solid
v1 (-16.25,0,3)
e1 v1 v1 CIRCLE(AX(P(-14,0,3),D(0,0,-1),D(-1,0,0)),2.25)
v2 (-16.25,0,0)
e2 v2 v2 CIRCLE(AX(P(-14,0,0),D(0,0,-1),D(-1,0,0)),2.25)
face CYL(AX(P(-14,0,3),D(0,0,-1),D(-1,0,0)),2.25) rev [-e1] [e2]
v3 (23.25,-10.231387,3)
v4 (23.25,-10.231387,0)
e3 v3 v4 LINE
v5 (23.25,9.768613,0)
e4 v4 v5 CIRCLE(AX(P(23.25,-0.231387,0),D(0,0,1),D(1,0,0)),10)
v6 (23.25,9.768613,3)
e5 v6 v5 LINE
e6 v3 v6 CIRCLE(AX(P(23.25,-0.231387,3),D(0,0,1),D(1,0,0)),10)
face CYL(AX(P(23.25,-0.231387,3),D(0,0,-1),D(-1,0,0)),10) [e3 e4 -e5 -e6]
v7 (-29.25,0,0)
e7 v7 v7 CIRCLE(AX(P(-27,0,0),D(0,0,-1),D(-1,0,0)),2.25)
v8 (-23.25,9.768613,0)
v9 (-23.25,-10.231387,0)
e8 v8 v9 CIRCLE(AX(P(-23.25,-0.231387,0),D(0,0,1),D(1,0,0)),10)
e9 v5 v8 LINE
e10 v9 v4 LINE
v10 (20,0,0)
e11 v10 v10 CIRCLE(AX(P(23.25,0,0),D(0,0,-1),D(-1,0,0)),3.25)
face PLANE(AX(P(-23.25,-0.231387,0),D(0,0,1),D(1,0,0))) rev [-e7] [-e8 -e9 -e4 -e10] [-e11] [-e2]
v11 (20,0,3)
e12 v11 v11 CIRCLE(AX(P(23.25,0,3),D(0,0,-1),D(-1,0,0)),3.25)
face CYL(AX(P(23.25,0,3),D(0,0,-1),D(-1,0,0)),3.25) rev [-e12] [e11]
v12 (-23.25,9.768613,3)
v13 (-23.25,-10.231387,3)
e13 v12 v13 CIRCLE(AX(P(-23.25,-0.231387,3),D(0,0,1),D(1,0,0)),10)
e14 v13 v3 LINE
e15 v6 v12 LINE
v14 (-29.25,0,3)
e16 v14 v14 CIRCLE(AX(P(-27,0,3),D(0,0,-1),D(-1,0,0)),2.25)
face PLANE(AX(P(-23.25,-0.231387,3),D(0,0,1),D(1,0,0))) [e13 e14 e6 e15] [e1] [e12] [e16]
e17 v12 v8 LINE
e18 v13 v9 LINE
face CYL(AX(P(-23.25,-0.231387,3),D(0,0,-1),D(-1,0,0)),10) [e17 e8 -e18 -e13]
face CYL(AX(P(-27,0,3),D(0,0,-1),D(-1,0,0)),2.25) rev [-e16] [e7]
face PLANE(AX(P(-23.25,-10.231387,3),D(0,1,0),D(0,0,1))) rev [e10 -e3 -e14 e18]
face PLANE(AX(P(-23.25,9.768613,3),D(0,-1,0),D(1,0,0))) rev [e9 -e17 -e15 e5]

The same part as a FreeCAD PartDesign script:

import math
import FreeCAD as App
import Part
import Sketcher
Q = App.Units.Quantity

doc = App.newDocument("Part")
body = doc.addObject("PartDesign::Body", "Body")

# Sketch on XY plane
sketch1 = body.newObject("Sketcher::SketchObject", "Sketch")
sketch1.AttachmentSupport = (doc.getObject("XY_Plane"), [""])
sketch1.MapMode = "FlatFace"
sketch1.addGeometry(Part.LineSegment(App.Vector(23, 10, 0), App.Vector(-23, 10, 0)), False)
sketch1.addGeometry(Part.ArcOfCircle(Part.Circle(App.Vector(-23, 0, 0), App.Vector(0, 0, 1), 10), math.radians(90), math.radians(270)), False)
sketch1.addGeometry(Part.LineSegment(App.Vector(-23, -10, 0), App.Vector(23, -10, 0)), False)
sketch1.addGeometry(Part.ArcOfCircle(Part.Circle(App.Vector(23, 0, 0), App.Vector(0, 0, 1), 10), math.radians(-90), math.radians(90)), False)
sketch1.addConstraint(Sketcher.Constraint("Tangent", 0, 2, 1, 1))
sketch1.addConstraint(Sketcher.Constraint("Tangent", 1, 2, 2, 1))
sketch1.addConstraint(Sketcher.Constraint("Tangent", 2, 2, 3, 1))
sketch1.addConstraint(Sketcher.Constraint("Tangent", 3, 2, 0, 1))
sketch1.addConstraint(Sketcher.Constraint("Horizontal", 0))
sketch1.addConstraint(Sketcher.Constraint("Horizontal", 2))
sketch1.addConstraint(Sketcher.Constraint("Radius", 1, Q("10 mm")))
sketch1.addConstraint(Sketcher.Constraint("DistanceX", 0, 2, 0, 1, Q("46.5 mm")))
sketch1.addConstraint(Sketcher.Constraint("DistanceX", 1, 3, -1, 1, Q("23.25 mm")))
sketch1.addConstraint(Sketcher.Constraint("DistanceY", 1, 3, -1, 1, Q("0.231387 mm")))
pad1 = body.newObject("PartDesign::Pad", "Pad")
pad1.Profile = sketch1
pad1.Length = 3

# Sketch on XY plane
sketch2 = body.newObject("Sketcher::SketchObject", "Sketch001")
sketch2.AttachmentSupport = (doc.getObject("XY_Plane"), [""])
sketch2.MapMode = "FlatFace"
sketch2.addGeometry(Part.Circle(App.Vector(-14, 0, 0), App.Vector(0, 0, 1), 2.2), False)
sketch2.addGeometry(Part.Circle(App.Vector(-27, 0, 0), App.Vector(0, 0, 1), 2.2), False)
sketch2.addGeometry(Part.Circle(App.Vector(23.2, 0, 0), App.Vector(0, 0, 1), 3.2), False)
sketch2.addConstraint(Sketcher.Constraint("Equal", 0, 1))
sketch2.addConstraint(Sketcher.Constraint("PointOnObject", 0, 3, -1))
sketch2.addConstraint(Sketcher.Constraint("PointOnObject", 1, 3, -1))
sketch2.addConstraint(Sketcher.Constraint("PointOnObject", 2, 3, -1))
sketch2.addConstraint(Sketcher.Constraint("Diameter", 0, Q("4.5 mm")))
sketch2.addConstraint(Sketcher.Constraint("Diameter", 2, Q("6.5 mm")))
sketch2.addConstraint(Sketcher.Constraint("DistanceX", 0, 3, -1, 1, Q("14 mm")))
sketch2.addConstraint(Sketcher.Constraint("DistanceX", 1, 3, -1, 1, Q("27 mm")))
sketch2.addConstraint(Sketcher.Constraint("DistanceX", -1, 1, 2, 3, Q("23.25 mm")))
pocket1 = body.newObject("PartDesign::Pocket", "Pocket")
pocket1.Profile = sketch2
pocket1.Length = 3
pocket1.Reversed = True

doc.recompute()
